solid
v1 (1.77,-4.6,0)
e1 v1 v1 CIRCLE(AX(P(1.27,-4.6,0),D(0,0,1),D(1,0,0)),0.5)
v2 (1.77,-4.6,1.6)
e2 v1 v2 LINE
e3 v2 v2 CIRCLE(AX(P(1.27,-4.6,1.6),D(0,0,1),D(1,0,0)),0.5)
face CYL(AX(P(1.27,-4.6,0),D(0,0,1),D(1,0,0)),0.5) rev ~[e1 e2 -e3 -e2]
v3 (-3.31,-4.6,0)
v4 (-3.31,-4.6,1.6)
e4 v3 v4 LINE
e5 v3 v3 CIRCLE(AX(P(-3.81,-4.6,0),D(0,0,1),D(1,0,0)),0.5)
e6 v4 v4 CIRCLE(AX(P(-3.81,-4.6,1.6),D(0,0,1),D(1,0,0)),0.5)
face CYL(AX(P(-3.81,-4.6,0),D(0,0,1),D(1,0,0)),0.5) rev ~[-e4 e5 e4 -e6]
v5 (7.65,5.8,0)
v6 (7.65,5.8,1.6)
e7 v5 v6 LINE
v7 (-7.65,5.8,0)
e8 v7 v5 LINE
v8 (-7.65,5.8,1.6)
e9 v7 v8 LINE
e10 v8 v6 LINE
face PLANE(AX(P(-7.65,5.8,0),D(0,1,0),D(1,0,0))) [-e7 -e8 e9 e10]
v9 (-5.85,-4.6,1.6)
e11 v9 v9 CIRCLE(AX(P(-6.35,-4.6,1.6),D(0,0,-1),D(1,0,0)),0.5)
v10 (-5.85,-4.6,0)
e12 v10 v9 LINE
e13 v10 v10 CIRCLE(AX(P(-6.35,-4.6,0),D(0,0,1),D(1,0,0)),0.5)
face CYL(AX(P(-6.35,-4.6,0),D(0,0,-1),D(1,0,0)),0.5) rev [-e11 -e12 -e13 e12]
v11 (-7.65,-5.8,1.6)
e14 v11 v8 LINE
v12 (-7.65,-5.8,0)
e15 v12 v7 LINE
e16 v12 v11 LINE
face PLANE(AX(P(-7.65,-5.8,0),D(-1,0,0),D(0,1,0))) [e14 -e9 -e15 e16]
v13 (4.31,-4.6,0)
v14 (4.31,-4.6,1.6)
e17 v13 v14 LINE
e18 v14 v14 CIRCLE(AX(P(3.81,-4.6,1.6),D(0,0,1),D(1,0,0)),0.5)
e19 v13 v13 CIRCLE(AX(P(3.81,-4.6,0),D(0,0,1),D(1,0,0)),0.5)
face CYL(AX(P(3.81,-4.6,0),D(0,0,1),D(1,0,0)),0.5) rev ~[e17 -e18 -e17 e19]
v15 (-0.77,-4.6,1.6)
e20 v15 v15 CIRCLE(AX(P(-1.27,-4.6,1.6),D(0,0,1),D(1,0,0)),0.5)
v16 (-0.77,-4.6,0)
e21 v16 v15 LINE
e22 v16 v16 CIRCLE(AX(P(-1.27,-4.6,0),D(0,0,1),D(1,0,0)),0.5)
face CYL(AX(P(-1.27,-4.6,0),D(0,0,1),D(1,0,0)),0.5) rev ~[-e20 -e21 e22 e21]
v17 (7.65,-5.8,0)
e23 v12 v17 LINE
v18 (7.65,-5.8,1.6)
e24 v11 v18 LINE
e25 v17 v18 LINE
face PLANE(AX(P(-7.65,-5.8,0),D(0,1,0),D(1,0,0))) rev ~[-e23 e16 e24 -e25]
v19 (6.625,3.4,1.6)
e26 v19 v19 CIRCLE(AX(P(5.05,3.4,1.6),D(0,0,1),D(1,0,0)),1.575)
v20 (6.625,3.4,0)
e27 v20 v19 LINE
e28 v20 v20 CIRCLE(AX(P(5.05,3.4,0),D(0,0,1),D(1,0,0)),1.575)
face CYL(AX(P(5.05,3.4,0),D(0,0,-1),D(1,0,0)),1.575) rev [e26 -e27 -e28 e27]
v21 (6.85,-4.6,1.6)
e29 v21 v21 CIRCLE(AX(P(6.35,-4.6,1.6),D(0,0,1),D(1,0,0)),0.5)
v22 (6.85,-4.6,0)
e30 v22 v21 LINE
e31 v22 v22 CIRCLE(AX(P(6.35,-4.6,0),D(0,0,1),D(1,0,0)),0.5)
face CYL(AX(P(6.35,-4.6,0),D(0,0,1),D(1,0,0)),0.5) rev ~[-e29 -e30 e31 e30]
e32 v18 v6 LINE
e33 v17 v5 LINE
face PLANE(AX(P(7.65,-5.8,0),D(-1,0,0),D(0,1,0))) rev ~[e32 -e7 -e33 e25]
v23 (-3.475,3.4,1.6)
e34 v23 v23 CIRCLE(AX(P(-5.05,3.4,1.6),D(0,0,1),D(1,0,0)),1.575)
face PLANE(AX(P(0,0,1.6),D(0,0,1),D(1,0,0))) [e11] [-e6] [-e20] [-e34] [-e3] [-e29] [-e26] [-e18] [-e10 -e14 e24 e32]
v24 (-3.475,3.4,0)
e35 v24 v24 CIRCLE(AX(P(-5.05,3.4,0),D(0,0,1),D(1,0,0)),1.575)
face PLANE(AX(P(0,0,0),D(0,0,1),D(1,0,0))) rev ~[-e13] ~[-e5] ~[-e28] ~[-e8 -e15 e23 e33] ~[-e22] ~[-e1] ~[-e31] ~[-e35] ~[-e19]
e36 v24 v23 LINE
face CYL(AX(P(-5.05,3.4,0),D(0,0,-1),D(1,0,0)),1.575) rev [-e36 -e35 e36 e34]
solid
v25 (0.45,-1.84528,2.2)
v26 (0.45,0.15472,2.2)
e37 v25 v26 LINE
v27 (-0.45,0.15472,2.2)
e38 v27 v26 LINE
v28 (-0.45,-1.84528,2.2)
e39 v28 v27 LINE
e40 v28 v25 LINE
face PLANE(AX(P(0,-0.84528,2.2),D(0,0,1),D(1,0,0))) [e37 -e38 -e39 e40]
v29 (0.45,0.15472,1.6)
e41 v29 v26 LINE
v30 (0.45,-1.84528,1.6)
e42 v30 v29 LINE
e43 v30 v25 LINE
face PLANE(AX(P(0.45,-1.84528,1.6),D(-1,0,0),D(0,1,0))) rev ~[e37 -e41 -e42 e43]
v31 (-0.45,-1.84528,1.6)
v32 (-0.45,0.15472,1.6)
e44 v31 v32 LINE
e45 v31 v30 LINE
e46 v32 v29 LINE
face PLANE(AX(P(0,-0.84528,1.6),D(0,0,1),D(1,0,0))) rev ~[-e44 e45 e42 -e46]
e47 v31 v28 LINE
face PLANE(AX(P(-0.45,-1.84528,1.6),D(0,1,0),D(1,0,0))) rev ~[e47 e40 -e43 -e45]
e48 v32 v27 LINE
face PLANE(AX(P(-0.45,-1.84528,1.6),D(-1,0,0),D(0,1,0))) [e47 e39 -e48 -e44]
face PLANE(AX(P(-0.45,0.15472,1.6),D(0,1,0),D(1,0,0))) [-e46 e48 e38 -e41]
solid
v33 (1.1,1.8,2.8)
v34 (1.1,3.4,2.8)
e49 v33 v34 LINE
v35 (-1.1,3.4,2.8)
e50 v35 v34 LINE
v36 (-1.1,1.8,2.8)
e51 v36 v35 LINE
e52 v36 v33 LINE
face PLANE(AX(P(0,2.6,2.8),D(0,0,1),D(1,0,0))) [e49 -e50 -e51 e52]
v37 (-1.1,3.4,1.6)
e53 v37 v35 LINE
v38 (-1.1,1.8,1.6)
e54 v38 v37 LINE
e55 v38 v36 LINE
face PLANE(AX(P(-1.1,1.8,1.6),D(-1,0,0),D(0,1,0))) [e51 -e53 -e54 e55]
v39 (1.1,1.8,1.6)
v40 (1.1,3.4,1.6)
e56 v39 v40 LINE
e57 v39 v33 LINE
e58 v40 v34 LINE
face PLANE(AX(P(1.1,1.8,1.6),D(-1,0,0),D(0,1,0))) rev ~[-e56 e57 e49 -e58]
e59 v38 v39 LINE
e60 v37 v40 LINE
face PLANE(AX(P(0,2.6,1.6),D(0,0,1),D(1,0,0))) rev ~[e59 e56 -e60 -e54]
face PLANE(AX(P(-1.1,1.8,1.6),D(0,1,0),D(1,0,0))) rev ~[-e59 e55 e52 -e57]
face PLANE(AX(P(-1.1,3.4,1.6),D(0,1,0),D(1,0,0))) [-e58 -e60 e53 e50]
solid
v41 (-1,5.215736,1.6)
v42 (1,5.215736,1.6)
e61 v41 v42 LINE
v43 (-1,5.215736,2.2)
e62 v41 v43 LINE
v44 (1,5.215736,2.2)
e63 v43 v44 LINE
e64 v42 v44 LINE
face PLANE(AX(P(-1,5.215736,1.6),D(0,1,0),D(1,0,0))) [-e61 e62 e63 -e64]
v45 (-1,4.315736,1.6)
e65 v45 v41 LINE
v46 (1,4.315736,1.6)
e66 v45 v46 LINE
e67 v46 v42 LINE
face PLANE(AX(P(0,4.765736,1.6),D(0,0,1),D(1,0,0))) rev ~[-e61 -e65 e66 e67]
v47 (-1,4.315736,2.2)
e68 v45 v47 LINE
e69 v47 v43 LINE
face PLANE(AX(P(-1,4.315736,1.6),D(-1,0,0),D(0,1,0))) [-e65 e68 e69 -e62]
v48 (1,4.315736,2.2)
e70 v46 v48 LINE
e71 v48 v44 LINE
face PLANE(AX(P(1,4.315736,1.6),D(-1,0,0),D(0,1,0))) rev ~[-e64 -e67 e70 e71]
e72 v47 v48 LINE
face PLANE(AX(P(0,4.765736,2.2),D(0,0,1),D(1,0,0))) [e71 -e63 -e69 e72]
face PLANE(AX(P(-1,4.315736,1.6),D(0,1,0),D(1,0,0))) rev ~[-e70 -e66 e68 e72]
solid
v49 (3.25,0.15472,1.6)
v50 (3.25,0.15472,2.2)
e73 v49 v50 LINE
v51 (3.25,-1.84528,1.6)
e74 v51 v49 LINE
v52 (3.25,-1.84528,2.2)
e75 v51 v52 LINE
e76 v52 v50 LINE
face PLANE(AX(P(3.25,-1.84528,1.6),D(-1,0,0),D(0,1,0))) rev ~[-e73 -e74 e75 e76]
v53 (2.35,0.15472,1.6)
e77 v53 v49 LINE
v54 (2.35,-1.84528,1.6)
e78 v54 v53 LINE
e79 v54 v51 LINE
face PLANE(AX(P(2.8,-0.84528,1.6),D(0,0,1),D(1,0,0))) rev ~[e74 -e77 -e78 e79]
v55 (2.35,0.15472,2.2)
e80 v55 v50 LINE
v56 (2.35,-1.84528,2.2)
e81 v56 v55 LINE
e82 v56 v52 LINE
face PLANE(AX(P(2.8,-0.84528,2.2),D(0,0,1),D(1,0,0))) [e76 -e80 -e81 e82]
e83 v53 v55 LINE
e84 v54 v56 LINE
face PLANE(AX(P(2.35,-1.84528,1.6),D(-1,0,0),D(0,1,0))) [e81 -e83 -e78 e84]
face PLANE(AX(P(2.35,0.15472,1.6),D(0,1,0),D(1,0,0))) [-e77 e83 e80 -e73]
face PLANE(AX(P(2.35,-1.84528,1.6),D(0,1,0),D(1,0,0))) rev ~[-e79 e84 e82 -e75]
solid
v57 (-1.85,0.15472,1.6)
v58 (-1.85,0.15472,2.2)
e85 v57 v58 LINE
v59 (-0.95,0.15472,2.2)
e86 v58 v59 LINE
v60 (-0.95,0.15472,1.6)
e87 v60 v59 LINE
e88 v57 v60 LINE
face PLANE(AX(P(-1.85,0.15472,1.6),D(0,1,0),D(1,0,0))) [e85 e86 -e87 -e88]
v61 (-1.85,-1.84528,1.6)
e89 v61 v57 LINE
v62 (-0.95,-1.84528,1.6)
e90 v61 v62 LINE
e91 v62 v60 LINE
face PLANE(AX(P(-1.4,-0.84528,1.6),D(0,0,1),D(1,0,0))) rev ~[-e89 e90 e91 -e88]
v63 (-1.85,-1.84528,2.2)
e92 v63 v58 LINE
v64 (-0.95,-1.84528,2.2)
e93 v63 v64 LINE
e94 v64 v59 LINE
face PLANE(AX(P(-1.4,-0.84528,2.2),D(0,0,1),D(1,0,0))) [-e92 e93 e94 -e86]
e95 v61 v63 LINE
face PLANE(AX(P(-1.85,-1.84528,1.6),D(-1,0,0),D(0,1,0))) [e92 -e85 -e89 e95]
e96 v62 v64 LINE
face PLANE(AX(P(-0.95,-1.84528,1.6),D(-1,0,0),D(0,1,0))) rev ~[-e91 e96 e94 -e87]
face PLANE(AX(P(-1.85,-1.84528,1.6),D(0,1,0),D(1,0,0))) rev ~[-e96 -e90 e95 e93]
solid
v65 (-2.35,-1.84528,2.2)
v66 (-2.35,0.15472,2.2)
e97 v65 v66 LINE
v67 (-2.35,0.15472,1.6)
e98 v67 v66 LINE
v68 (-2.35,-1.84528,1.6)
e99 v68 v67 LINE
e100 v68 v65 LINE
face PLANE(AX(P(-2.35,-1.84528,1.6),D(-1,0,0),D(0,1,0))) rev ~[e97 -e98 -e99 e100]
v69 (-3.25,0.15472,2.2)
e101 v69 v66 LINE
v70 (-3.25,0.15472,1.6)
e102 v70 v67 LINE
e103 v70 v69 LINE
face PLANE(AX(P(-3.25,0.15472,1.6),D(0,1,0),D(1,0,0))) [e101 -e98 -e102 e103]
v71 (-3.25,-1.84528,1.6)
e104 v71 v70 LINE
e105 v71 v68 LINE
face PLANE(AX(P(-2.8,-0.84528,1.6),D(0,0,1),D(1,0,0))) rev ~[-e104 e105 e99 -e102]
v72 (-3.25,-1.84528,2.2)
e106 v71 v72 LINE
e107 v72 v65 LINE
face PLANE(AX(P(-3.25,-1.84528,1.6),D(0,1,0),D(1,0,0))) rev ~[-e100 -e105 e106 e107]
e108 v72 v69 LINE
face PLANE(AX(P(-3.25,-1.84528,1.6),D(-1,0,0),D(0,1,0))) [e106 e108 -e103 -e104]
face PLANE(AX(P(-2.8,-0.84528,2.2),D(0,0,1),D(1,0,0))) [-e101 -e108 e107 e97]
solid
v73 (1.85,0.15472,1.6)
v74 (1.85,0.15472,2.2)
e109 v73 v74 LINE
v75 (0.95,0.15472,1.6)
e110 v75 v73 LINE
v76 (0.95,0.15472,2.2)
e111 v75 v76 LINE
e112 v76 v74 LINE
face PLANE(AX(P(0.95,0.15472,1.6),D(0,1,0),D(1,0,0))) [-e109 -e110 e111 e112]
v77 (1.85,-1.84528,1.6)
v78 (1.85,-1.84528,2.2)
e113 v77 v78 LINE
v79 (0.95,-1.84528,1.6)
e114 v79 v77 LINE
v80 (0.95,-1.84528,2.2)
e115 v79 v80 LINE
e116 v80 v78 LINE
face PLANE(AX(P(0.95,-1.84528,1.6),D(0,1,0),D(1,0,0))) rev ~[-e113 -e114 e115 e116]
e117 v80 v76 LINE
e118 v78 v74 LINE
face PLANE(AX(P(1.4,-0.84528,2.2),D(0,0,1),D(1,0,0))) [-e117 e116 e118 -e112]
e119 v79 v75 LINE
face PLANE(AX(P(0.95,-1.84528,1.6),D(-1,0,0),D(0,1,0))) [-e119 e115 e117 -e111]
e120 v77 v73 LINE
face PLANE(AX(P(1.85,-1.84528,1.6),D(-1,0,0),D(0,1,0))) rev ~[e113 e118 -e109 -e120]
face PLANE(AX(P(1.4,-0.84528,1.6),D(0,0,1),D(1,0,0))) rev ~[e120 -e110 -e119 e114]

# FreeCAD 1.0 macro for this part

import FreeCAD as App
import Part
import Sketcher

doc = App.newDocument("Part")
body = doc.addObject("PartDesign::Body", "Body")

# Sketch on XY plane
sketch1 = body.newObject("Sketcher::SketchObject", "Sketch")
sketch1.AttachmentSupport = (doc.getObject("XY_Plane"), [""])
sketch1.MapMode = "FlatFace"
sketch1.addGeometry([
    Part.LineSegment(App.Vector(-7.7, 5.8, 0), App.Vector(-7.7, -5.8, 0)),  # 0
    Part.LineSegment(App.Vector(-7.7, -5.8, 0), App.Vector(7.7, -5.8, 0)),  # 1
    Part.LineSegment(App.Vector(7.7, -5.8, 0), App.Vector(7.7, 5.8, 0)),  # 2
    Part.LineSegment(App.Vector(7.7, 5.8, 0), App.Vector(-7.7, 5.8, 0)),  # 3
    Part.Circle(App.Vector(-5, 3.4, 0), App.Vector(0, 0, 1), 1.6),  # 4
    Part.Circle(App.Vector(5, 3.4, 0), App.Vector(0, 0, 1), 1.6),  # 5
], False)
sketch1.addConstraint([
    Sketcher.Constraint("Coincident", 0, 2, 1, 1),
    Sketcher.Constraint("Coincident", 1, 2, 2, 1),
    Sketcher.Constraint("Coincident", 2, 2, 3, 1),
    Sketcher.Constraint("Coincident", 3, 2, 0, 1),
    Sketcher.Constraint("Vertical", 0),
    Sketcher.Constraint("Horizontal", 1),
    Sketcher.Constraint("Vertical", 2),
    Sketcher.Constraint("Horizontal", 3),
    Sketcher.Constraint("Equal", 4, 5),
    Sketcher.Constraint("Symmetric", 0, 2, 2, 2, -1, 1),
    Sketcher.Constraint("Symmetric", 4, 3, 5, 3, -2),
    Sketcher.Constraint("Diameter", 4, 3.15),
    Sketcher.Constraint("DistanceX", 1, 1, 1, 2, 15.3),
    Sketcher.Constraint("DistanceY", 0, 2, 0, 1, 11.6),
    Sketcher.Constraint("DistanceY", -1, 1, 4, 3, 3.4),
    Sketcher.Constraint("DistanceX", 4, 3, 5, 3, 10.1),
])
pad1 = body.newObject("PartDesign::Pad", "Pad")
pad1.Profile = sketch1
pad1.Length = 1.6

# Sketch on XY plane
sketch2 = body.newObject("Sketcher::SketchObject", "Sketch001")
sketch2.AttachmentSupport = (doc.getObject("XY_Plane"), [""])
sketch2.MapMode = "FlatFace"
sketch2.addGeometry(Part.Circle(App.Vector(-6.3, -4.6, 0), App.Vector(0, 0, 1), 0.5), False)
sketch2.addConstraint([
    Sketcher.Constraint("Diameter", 0, 1.0),
    Sketcher.Constraint("DistanceY", 0, 3, -1, 1, 4.6),
    Sketcher.Constraint("DistanceX", 0, 3, -1, 1, 6.35),
])
pocket1 = body.newObject("PartDesign::Pocket", "Pocket")
pocket1.Profile = sketch2
pocket1.Type = "ThroughAll"
pocket1.Midplane = True
doc.recompute()

linearpattern = body.newObject("PartDesign::LinearPattern", "LinearPattern")
linearpattern.Originals = [pocket1]
linearpattern.Direction = (doc.getObject("X_Axis"), [""])
linearpattern.Mode = "offset"
linearpattern.Offset = 2.54
linearpattern.Occurrences = 6
body.Tip = linearpattern
body2 = doc.addObject("PartDesign::Body", "Body001")

# Sketch on XY plane
sketch3 = body2.newObject("Sketcher::SketchObject", "Sketch002")
sketch3.AttachmentSupport = (doc.getObject("XY_Plane001"), [""])
sketch3.MapMode = "FlatFace"
sketch3.AttachmentOffset = App.Placement(App.Vector(0, 0, 1.6), App.Rotation())
sketch3.addGeometry([
    Part.LineSegment(App.Vector(-1.1, 3.4, 0), App.Vector(-1.1, 1.8, 0)),
    Part.LineSegment(App.Vector(-1.1, 1.8, 0), App.Vector(1.1, 1.8, 0)),
    Part.LineSegment(App.Vector(1.1, 1.8, 0), App.Vector(1.1, 3.4, 0)),
    Part.LineSegment(App.Vector(1.1, 3.4, 0), App.Vector(-1.1, 3.4, 0)),
], False)
sketch3.addConstraint([
    Sketcher.Constraint("Coincident", 0, 2, 1, 1),
    Sketcher.Constraint("Coincident", 1, 2, 2, 1),
    Sketcher.Constraint("Coincident", 2, 2, 3, 1),
    Sketcher.Constraint("Coincident", 3, 2, 0, 1),
    Sketcher.Constraint("Vertical", 0),
    Sketcher.Constraint("Horizontal", 1),
    Sketcher.Constraint("Vertical", 2),
    Sketcher.Constraint("Horizontal", 3),
    Sketcher.Constraint("DistanceX", 1, 1, 1, 2, 2.2),
    Sketcher.Constraint("DistanceY", 0, 2, 0, 1, 1.6),
    Sketcher.Constraint("DistanceX", 0, 2, -1, 1, 1.1),
    Sketcher.Constraint("DistanceY", -1, 1, 0, 2, 1.8),
])
pad2 = body2.newObject("PartDesign::Pad", "Pad001")
pad2.Profile = sketch3
pad2.Length = 1.2
body3 = doc.addObject("PartDesign::Body", "Body002")

# Sketch on XY plane
sketch4 = body3.newObject("Sketcher::SketchObject", "Sketch003")
sketch4.AttachmentSupport = (doc.getObject("XY_Plane002"), [""])
sketch4.MapMode = "FlatFace"
sketch4.AttachmentOffset = App.Placement(App.Vector(0, 0, 1.6), App.Rotation())
sketch4.addGeometry([
    Part.LineSegment(App.Vector(-1, 5.2, 0), App.Vector(-1, 4.3, 0)),
    Part.LineSegment(App.Vector(-1, 4.3, 0), App.Vector(1, 4.3, 0)),
    Part.LineSegment(App.Vector(1, 4.3, 0), App.Vector(1, 5.2, 0)),
    Part.LineSegment(App.Vector(1, 5.2, 0), App.Vector(-1, 5.2, 0)),
], False)
sketch4.addConstraint([
    Sketcher.Constraint("Coincident", 0, 2, 1, 1),
    Sketcher.Constraint("Coincident", 1, 2, 2, 1),
    Sketcher.Constraint("Coincident", 2, 2, 3, 1),
    Sketcher.Constraint("Coincident", 3, 2, 0, 1),
    Sketcher.Constraint("Vertical", 0),
    Sketcher.Constraint("Horizontal", 1),
    Sketcher.Constraint("Vertical", 2),
    Sketcher.Constraint("Horizontal", 3),
    Sketcher.Constraint("DistanceX", 1, 1, 1, 2, 2.0),
    Sketcher.Constraint("DistanceY", 0, 2, 0, 1, 0.9),
    Sketcher.Constraint("DistanceX", 0, 2, -1, 1, 1.0),
    Sketcher.Constraint("DistanceY", -1, 1, 0, 2, 4.315736),
])
pad3 = body3.newObject("PartDesign::Pad", "Pad002")
pad3.Profile = sketch4
pad3.Length = 0.6
body4 = doc.addObject("PartDesign::Body", "Body003")

# Sketch on XY plane
sketch5 = body4.newObject("Sketcher::SketchObject", "Sketch004")
sketch5.AttachmentSupport = (doc.getObject("XY_Plane003"), [""])
sketch5.MapMode = "FlatFace"
sketch5.AttachmentOffset = App.Placement(App.Vector(0, 0, 1.6), App.Rotation())
sketch5.addGeometry([
    Part.LineSegment(App.Vector(-3.2, 0.2, 0), App.Vector(-3.2, -1.8, 0)),
    Part.LineSegment(App.Vector(-3.2, -1.8, 0), App.Vector(-2.4, -1.8, 0)),
    Part.LineSegment(App.Vector(-2.4, -1.8, 0), App.Vector(-2.4, 0.2, 0)),
    Part.LineSegment(App.Vector(-2.4, 0.2, 0), App.Vector(-3.2, 0.2, 0)),
], False)
sketch5.addConstraint([
    Sketcher.Constraint("Coincident", 0, 2, 1, 1),
    Sketcher.Constraint("Coincident", 1, 2, 2, 1),
    Sketcher.Constraint("Coincident", 2, 2, 3, 1),
    Sketcher.Constraint("Coincident", 3, 2, 0, 1),
    Sketcher.Constraint("Vertical", 0),
    Sketcher.Constraint("Horizontal", 1),
    Sketcher.Constraint("Vertical", 2),
    Sketcher.Constraint("Horizontal", 3),
    Sketcher.Constraint("DistanceY", 0, 2, 0, 1, 2.0),
    Sketcher.Constraint("DistanceX", 1, 1, 1, 2, 0.9),
    Sketcher.Constraint("DistanceX", 0, 2, -1, 1, 3.25),
    Sketcher.Constraint("DistanceY", 0, 2, -1, 1, 1.84528),
])
pad4 = body4.newObject("PartDesign::Pad", "Pad003")
pad4.Profile = sketch5
pad4.Length = 0.6
body5 = doc.addObject("PartDesign::Body", "Body004")

# Sketch on XY plane
sketch6 = body5.newObject("Sketcher::SketchObject", "Sketch005")
sketch6.AttachmentSupport = (doc.getObject("XY_Plane004"), [""])
sketch6.MapMode = "FlatFace"
sketch6.AttachmentOffset = App.Placement(App.Vector(0, 0, 1.6), App.Rotation())
sketch6.addGeometry([
    Part.LineSegment(App.Vector(-1.9, 0.2, 0), App.Vector(-1.9, -1.8, 0)),
    Part.LineSegment(App.Vector(-1.9, -1.8, 0), App.Vector(-0.9, -1.8, 0)),
    Part.LineSegment(App.Vector(-0.9, -1.8, 0), App.Vector(-0.9, 0.2, 0)),
    Part.LineSegment(App.Vector(-0.9, 0.2, 0), App.Vector(-1.9, 0.2, 0)),
], False)
sketch6.addConstraint([
    Sketcher.Constraint("Coincident", 0, 2, 1, 1),
    Sketcher.Constraint("Coincident", 1, 2, 2, 1),
    Sketcher.Constraint("Coincident", 2, 2, 3, 1),
    Sketcher.Constraint("Coincident", 3, 2, 0, 1),
    Sketcher.Constraint("Vertical", 0),
    Sketcher.Constraint("Horizontal", 1),
    Sketcher.Constraint("Vertical", 2),
    Sketcher.Constraint("Horizontal", 3),
    Sketcher.Constraint("DistanceY", 0, 2, 0, 1, 2.0),
    Sketcher.Constraint("DistanceX", 1, 1, 1, 2, 0.9),
    Sketcher.Constraint("DistanceX", 0, 2, -1, 1, 1.85),
    Sketcher.Constraint("DistanceY", 0, 2, -1, 1, 1.84528),
])
pad5 = body5.newObject("PartDesign::Pad", "Pad004")
pad5.Profile = sketch6
pad5.Length = 0.6
body6 = doc.addObject("PartDesign::Body", "Body005")

# Sketch on XY plane
sketch7 = body6.newObject("Sketcher::SketchObject", "Sketch006")
sketch7.AttachmentSupport = (doc.getObject("XY_Plane005"), [""])
sketch7.MapMode = "FlatFace"
sketch7.AttachmentOffset = App.Placement(App.Vector(0, 0, 1.6), App.Rotation())
sketch7.addGeometry([
    Part.LineSegment(App.Vector(-0.5, 0.2, 0), App.Vector(-0.5, -1.8, 0)),
    Part.LineSegment(App.Vector(-0.5, -1.8, 0), App.Vector(0.5, -1.8, 0)),
    Part.LineSegment(App.Vector(0.5, -1.8, 0), App.Vector(0.5, 0.2, 0)),
    Part.LineSegment(App.Vector(0.5, 0.2, 0), App.Vector(-0.5, 0.2, 0)),
], False)
sketch7.addConstraint([
    Sketcher.Constraint("Coincident", 0, 2, 1, 1),
    Sketcher.Constraint("Coincident", 1, 2, 2, 1),
    Sketcher.Constraint("Coincident", 2, 2, 3, 1),
    Sketcher.Constraint("Coincident", 3, 2, 0, 1),
    Sketcher.Constraint("Vertical", 0),
    Sketcher.Constraint("Horizontal", 1),
    Sketcher.Constraint("Vertical", 2),
    Sketcher.Constraint("Horizontal", 3),
    Sketcher.Constraint("DistanceY", 0, 2, 0, 1, 2.0),
    Sketcher.Constraint("DistanceX", 1, 1, 1, 2, 0.9),
    Sketcher.Constraint("DistanceX", 0, 2, -1, 1, 0.45),
    Sketcher.Constraint("DistanceY", 0, 2, -1, 1, 1.84528),
])
pad6 = body6.newObject("PartDesign::Pad", "Pad005")
pad6.Profile = sketch7
pad6.Length = 0.6
body7 = doc.addObject("PartDesign::Body", "Body006")

# Sketch on XY plane
sketch8 = body7.newObject("Sketcher::SketchObject", "Sketch007")
sketch8.AttachmentSupport = (doc.getObject("XY_Plane006"), [""])
sketch8.MapMode = "FlatFace"
sketch8.AttachmentOffset = App.Placement(App.Vector(0, 0, 1.6), App.Rotation())
sketch8.addGeometry([
    Part.LineSegment(App.Vector(0.9, 0.2, 0), App.Vector(0.9, -1.8, 0)),
    Part.LineSegment(App.Vector(0.9, -1.8, 0), App.Vector(1.9, -1.8, 0)),
    Part.LineSegment(App.Vector(1.9, -1.8, 0), App.Vector(1.9, 0.2, 0)),
    Part.LineSegment(App.Vector(1.9, 0.2, 0), App.Vector(0.9, 0.2, 0)),
], False)
sketch8.addConstraint([
    Sketcher.Constraint("Coincident", 0, 2, 1, 1),
    Sketcher.Constraint("Coincident", 1, 2, 2, 1),
    Sketcher.Constraint("Coincident", 2, 2, 3, 1),
    Sketcher.Constraint("Coincident", 3, 2, 0, 1),
    Sketcher.Constraint("Vertical", 0),
    Sketcher.Constraint("Horizontal", 1),
    Sketcher.Constraint("Vertical", 2),
    Sketcher.Constraint("Horizontal", 3),
    Sketcher.Constraint("DistanceY", 0, 2, 0, 1, 2.0),
    Sketcher.Constraint("DistanceX", 1, 1, 1, 2, 0.9),
    Sketcher.Constraint("DistanceX", -1, 1, 0, 2, 0.95),
    Sketcher.Constraint("DistanceY", 0, 2, -1, 1, 1.84528),
])
pad7 = body7.newObject("PartDesign::Pad", "Pad006")
pad7.Profile = sketch8
pad7.Length = 0.6
body8 = doc.addObject("PartDesign::Body", "Body007")

# Sketch on XY plane
sketch9 = body8.newObject("Sketcher::SketchObject", "Sketch008")
sketch9.AttachmentSupport = (doc.getObject("XY_Plane007"), [""])
sketch9.MapMode = "FlatFace"
sketch9.AttachmentOffset = App.Placement(App.Vector(0, 0, 1.6), App.Rotation())
sketch9.addGeometry([
    Part.LineSegment(App.Vector(2.4, 0.2, 0), App.Vector(2.4, -1.8, 0)),
    Part.LineSegment(App.Vector(2.4, -1.8, 0), App.Vector(3.2, -1.8, 0)),
    Part.LineSegment(App.Vector(3.2, -1.8, 0), App.Vector(3.2, 0.2, 0)),
    Part.LineSegment(App.Vector(3.2, 0.2, 0), App.Vector(2.4, 0.2, 0)),
], False)
sketch9.addConstraint([
    Sketcher.Constraint("Coincident", 0, 2, 1, 1),
    Sketcher.Constraint("Coincident", 1, 2, 2, 1),
    Sketcher.Constraint("Coincident", 2, 2, 3, 1),
    Sketcher.Constraint("Coincident", 3, 2, 0, 1),
    Sketcher.Constraint("Vertical", 0),
    Sketcher.Constraint("Horizontal", 1),
    Sketcher.Constraint("Vertical", 2),
    Sketcher.Constraint("Horizontal", 3),
    Sketcher.Constraint("DistanceY", 0, 2, 0, 1, 2.0),
    Sketcher.Constraint("DistanceX", 1, 1, 1, 2, 0.9),
    Sketcher.Constraint("DistanceX", -1, 1, 0, 2, 2.35),
    Sketcher.Constraint("DistanceY", 0, 2, -1, 1, 1.84528),
])
pad8 = body8.newObject("PartDesign::Pad", "Pad007")
pad8.Profile = sketch9
pad8.Length = 0.6

doc.recompute()
